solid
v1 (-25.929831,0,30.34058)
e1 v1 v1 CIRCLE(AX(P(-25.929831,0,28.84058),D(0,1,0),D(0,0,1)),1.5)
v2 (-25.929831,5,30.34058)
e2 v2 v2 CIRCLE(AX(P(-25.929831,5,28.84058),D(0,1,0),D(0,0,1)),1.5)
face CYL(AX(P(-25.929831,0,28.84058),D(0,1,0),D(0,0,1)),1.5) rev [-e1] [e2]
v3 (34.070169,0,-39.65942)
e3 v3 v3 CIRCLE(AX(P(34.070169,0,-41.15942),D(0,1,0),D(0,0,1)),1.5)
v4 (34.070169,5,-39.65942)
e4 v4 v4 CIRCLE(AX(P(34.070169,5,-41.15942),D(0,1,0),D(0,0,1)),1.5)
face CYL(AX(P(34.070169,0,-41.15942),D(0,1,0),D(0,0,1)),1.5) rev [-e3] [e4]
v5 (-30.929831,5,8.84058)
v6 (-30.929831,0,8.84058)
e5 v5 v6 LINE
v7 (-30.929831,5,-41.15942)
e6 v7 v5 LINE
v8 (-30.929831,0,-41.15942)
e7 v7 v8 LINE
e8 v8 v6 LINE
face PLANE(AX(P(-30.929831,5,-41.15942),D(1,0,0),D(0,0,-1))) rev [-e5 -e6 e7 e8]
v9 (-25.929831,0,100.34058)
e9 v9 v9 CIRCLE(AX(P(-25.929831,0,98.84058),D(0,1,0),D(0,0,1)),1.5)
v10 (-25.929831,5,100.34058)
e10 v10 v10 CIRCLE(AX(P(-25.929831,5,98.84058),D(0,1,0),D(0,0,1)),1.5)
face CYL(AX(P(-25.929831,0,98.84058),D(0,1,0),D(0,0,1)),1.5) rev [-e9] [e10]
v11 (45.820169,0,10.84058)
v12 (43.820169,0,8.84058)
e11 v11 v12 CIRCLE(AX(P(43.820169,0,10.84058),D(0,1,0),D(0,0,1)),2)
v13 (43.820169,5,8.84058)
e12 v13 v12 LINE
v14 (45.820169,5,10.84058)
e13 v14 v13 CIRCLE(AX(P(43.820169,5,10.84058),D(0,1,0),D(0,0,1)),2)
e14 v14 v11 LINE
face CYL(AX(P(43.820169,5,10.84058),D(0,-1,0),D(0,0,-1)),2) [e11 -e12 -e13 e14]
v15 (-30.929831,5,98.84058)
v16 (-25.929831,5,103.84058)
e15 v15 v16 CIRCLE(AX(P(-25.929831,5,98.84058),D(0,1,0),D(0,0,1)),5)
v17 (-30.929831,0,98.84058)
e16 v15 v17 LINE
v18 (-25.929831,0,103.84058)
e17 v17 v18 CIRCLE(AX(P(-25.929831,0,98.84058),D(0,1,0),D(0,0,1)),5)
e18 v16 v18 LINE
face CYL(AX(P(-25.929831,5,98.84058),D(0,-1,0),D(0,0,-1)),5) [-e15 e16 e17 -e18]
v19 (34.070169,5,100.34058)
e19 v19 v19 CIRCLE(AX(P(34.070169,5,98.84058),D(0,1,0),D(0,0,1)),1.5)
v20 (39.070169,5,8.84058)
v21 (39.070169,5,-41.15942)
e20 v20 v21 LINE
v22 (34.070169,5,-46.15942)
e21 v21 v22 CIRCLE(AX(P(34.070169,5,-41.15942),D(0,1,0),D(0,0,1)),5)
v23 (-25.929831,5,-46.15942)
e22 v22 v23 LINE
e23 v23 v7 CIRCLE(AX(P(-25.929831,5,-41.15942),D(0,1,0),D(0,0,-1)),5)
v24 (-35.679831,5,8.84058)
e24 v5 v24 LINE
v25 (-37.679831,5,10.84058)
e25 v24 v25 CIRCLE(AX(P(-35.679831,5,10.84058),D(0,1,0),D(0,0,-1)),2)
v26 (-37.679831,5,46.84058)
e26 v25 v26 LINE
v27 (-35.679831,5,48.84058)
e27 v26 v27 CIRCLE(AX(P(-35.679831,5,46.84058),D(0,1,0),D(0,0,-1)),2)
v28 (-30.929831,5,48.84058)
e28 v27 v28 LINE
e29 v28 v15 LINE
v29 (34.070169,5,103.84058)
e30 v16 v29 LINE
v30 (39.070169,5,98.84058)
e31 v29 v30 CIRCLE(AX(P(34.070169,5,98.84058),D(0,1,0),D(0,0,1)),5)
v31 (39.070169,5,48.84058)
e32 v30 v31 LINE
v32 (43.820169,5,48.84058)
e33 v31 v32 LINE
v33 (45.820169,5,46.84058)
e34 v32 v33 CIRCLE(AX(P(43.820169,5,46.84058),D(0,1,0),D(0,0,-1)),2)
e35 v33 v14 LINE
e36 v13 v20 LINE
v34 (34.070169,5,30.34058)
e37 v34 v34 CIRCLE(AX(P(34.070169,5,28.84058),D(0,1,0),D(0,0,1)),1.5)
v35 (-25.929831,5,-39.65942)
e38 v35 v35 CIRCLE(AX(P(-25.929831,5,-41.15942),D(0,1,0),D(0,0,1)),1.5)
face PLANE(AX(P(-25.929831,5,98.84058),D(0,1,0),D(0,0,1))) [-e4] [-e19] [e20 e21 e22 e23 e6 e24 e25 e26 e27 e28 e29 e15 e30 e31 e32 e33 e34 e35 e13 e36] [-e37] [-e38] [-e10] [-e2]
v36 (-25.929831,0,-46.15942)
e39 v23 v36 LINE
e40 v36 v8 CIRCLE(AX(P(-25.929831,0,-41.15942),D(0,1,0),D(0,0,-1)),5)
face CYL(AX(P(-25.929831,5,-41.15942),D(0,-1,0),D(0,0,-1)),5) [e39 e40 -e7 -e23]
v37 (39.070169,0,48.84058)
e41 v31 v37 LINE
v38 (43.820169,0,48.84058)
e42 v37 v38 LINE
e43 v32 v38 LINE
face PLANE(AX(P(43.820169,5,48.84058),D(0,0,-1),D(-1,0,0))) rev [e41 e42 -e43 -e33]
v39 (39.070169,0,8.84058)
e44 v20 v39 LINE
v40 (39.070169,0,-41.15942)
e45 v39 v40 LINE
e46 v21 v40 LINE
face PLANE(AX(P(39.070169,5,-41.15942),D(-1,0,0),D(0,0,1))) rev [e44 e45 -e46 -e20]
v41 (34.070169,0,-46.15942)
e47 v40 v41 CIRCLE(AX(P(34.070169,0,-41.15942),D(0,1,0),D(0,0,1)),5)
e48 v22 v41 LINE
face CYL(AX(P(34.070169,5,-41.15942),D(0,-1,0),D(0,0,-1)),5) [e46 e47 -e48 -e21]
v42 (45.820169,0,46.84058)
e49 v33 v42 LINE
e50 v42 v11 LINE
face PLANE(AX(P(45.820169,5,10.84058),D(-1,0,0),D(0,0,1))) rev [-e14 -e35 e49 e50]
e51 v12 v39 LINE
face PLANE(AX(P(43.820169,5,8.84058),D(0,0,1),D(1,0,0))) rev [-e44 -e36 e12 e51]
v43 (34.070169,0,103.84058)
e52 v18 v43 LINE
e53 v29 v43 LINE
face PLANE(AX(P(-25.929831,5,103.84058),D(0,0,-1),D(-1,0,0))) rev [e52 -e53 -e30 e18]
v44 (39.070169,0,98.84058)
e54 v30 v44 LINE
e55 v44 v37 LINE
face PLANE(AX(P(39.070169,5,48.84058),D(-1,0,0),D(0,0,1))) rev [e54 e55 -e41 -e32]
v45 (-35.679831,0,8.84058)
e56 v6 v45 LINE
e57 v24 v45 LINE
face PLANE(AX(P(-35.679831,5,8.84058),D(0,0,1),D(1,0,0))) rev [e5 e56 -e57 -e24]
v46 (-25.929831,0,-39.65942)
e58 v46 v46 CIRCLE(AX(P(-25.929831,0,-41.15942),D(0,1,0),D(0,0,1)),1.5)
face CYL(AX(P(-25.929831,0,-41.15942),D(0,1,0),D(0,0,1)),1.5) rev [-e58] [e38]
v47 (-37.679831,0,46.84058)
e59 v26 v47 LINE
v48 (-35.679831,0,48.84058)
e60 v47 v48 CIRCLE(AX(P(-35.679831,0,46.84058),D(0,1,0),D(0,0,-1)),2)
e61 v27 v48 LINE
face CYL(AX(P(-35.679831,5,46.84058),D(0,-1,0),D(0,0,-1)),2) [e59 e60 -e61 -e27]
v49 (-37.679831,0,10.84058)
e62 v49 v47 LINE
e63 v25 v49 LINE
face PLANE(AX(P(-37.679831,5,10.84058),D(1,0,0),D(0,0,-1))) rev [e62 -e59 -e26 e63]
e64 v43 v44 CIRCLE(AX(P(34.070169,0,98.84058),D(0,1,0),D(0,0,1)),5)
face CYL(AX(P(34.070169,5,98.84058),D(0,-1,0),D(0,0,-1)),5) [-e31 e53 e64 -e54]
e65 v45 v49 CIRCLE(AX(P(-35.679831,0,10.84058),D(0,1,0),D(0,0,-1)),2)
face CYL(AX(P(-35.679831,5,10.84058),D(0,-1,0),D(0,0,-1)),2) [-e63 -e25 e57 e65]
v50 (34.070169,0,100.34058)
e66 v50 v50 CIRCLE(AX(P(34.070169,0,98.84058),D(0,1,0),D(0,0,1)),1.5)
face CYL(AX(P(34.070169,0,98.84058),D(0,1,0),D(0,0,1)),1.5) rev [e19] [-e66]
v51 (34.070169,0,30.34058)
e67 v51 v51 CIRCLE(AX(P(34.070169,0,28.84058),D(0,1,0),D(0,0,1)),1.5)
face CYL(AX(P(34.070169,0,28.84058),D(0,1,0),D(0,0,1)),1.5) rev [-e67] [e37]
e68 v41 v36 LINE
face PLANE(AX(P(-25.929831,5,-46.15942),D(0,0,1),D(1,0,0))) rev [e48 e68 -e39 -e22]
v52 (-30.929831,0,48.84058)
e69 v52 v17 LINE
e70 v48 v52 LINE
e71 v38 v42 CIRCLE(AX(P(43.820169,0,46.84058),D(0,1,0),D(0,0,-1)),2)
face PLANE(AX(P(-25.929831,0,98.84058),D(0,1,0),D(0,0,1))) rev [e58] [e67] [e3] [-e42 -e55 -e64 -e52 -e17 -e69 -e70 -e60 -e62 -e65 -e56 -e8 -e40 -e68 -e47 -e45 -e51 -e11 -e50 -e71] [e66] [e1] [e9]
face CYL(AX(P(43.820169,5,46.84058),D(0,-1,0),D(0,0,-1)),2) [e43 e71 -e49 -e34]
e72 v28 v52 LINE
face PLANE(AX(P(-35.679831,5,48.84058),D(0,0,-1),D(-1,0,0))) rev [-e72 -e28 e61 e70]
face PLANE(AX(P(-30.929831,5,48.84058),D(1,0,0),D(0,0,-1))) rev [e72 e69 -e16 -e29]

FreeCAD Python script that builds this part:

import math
import FreeCAD as App
import Part
import Sketcher

doc = App.newDocument("Part")
body = doc.addObject("PartDesign::Body", "Body")

# Sketch on XZ plane
sketch1 = body.newObject("Sketcher::SketchObject", "Sketch")
sketch1.AttachmentSupport = (doc.getObject("XZ_Plane"), [""])
sketch1.MapMode = "FlatFace"
sketch1.addGeometry(Part.LineSegment(App.Vector(34.1, -46.2, 0), App.Vector(-25.9, -46.2, 0)), False)
sketch1.addGeometry(Part.ArcOfCircle(Part.Circle(App.Vector(-25.9, -41.2, 0), App.Vector(0, 0, 1), 5), math.radians(180), math.radians(270)), False)
sketch1.addGeometry(Part.LineSegment(App.Vector(-30.9, -41.2, 0), App.Vector(-30.9, 8.8, 0)), False)
sketch1.addGeometry(Part.LineSegment(App.Vector(-30.9, 8.8, 0), App.Vector(-35.7, 8.8, 0)), False)
sketch1.addGeometry(Part.ArcOfCircle(Part.Circle(App.Vector(-35.7, 10.8, 0), App.Vector(0, 0, 1), 2), math.radians(-180), math.radians(-90)), False)
sketch1.addGeometry(Part.LineSegment(App.Vector(-37.7, 10.8, 0), App.Vector(-37.7, 46.8, 0)), False)
sketch1.addGeometry(Part.ArcOfCircle(Part.Circle(App.Vector(-35.7, 46.8, 0), App.Vector(0, 0, 1), 2), math.radians(90), math.radians(180)), False)
sketch1.addGeometry(Part.LineSegment(App.Vector(-35.7, 48.8, 0), App.Vector(-30.9, 48.8, 0)), False)
sketch1.addGeometry(Part.LineSegment(App.Vector(-30.9, 48.8, 0), App.Vector(-30.9, 98.8, 0)), False)
sketch1.addGeometry(Part.ArcOfCircle(Part.Circle(App.Vector(-25.9, 98.8, 0), App.Vector(0, 0, 1), 5), math.radians(90), math.radians(180)), False)
sketch1.addGeometry(Part.LineSegment(App.Vector(-25.9, 103.8, 0), App.Vector(34.1, 103.8, 0)), False)
sketch1.addGeometry(Part.ArcOfCircle(Part.Circle(App.Vector(34.1, 98.8, 0), App.Vector(0, 0, 1), 5), math.radians(0), math.radians(90)), False)
sketch1.addGeometry(Part.LineSegment(App.Vector(39.1, 98.8, 0), App.Vector(39.1, 48.8, 0)), False)
sketch1.addGeometry(Part.LineSegment(App.Vector(39.1, 48.8, 0), App.Vector(43.8, 48.8, 0)), False)
sketch1.addGeometry(Part.ArcOfCircle(Part.Circle(App.Vector(43.8, 46.8, 0), App.Vector(0, 0, 1), 2), math.radians(0), math.radians(90)), False)
sketch1.addGeometry(Part.LineSegment(App.Vector(45.8, 46.8, 0), App.Vector(45.8, 10.8, 0)), False)
sketch1.addGeometry(Part.ArcOfCircle(Part.Circle(App.Vector(43.8, 10.8, 0), App.Vector(0, 0, 1), 2), math.radians(-90), math.radians(0)), False)
sketch1.addGeometry(Part.LineSegment(App.Vector(43.8, 8.8, 0), App.Vector(39.1, 8.8, 0)), False)
sketch1.addGeometry(Part.LineSegment(App.Vector(39.1, 8.8, 0), App.Vector(39.1, -41.2, 0)), False)
sketch1.addGeometry(Part.ArcOfCircle(Part.Circle(App.Vector(34.1, -41.2, 0), App.Vector(0, 0, 1), 5), math.radians(-90), math.radians(0)), False)
sketch1.addConstraint(Sketcher.Constraint("Tangent", 0, 2, 1, 2))
sketch1.addConstraint(Sketcher.Constraint("Tangent", 1, 1, 2, 1))
sketch1.addConstraint(Sketcher.Constraint("Coincident", 2, 2, 3, 1))
sketch1.addConstraint(Sketcher.Constraint("Tangent", 3, 2, 4, 2))
sketch1.addConstraint(Sketcher.Constraint("Tangent", 4, 1, 5, 1))
sketch1.addConstraint(Sketcher.Constraint("Tangent", 5, 2, 6, 2))
sketch1.addConstraint(Sketcher.Constraint("Tangent", 6, 1, 7, 1))
sketch1.addConstraint(Sketcher.Constraint("Coincident", 7, 2, 8, 1))
sketch1.addConstraint(Sketcher.Constraint("Tangent", 8, 2, 9, 2))
sketch1.addConstraint(Sketcher.Constraint("Tangent", 9, 1, 10, 1))
sketch1.addConstraint(Sketcher.Constraint("Tangent", 10, 2, 11, 2))
sketch1.addConstraint(Sketcher.Constraint("Tangent", 11, 1, 12, 1))
sketch1.addConstraint(Sketcher.Constraint("Coincident", 12, 2, 13, 1))
sketch1.addConstraint(Sketcher.Constraint("Tangent", 13, 2, 14, 2))
sketch1.addConstraint(Sketcher.Constraint("Tangent", 14, 1, 15, 1))
sketch1.addConstraint(Sketcher.Constraint("Tangent", 15, 2, 16, 2))
sketch1.addConstraint(Sketcher.Constraint("Tangent", 16, 1, 17, 1))
sketch1.addConstraint(Sketcher.Constraint("Coincident", 17, 2, 18, 1))
sketch1.addConstraint(Sketcher.Constraint("Tangent", 18, 2, 19, 2))
sketch1.addConstraint(Sketcher.Constraint("Tangent", 19, 1, 0, 1))
sketch1.addConstraint(Sketcher.Constraint("Horizontal", 0))
sketch1.addConstraint(Sketcher.Constraint("Vertical", 2))
sketch1.addConstraint(Sketcher.Constraint("Horizontal", 3))
sketch1.addConstraint(Sketcher.Constraint("Vertical", 5))
sketch1.addConstraint(Sketcher.Constraint("Horizontal", 7))
sketch1.addConstraint(Sketcher.Constraint("Vertical", 8))
sketch1.addConstraint(Sketcher.Constraint("Horizontal", 10))
sketch1.addConstraint(Sketcher.Constraint("Vertical", 12))
sketch1.addConstraint(Sketcher.Constraint("Horizontal", 13))
sketch1.addConstraint(Sketcher.Constraint("Vertical", 15))
sketch1.addConstraint(Sketcher.Constraint("Horizontal", 17))
sketch1.addConstraint(Sketcher.Constraint("Vertical", 18))
sketch1.addConstraint(Sketcher.Constraint("Equal", 4, 6))
sketch1.addConstraint(Sketcher.Constraint("Equal", 1, 9))
sketch1.addConstraint(Sketcher.Constraint("Equal", 9, 11))
sketch1.addConstraint(Sketcher.Constraint("Equal", 6, 14))
sketch1.addConstraint(Sketcher.Constraint("Equal", 14, 16))
sketch1.addConstraint(Sketcher.Constraint("Equal", 11, 19))
sketch1.addConstraint(Sketcher.Constraint("Horizontal", 6, 3, 14, 3))
sketch1.addConstraint(Sketcher.Constraint("Horizontal", 4, 3, 16, 3))
sketch1.addConstraint(Sketcher.Constraint("Vertical", 1, 3, 9, 3))
sketch1.addConstraint(Sketcher.Constraint("Vertical", 11, 3, 19, 3))
sketch1.addConstraint(Sketcher.Constraint("Equal", 7, 13))
sketch1.addConstraint(Sketcher.Constraint("Equal", 2, 8))
sketch1.addConstraint(Sketcher.Constraint("Radius", 1, 5.0))
sketch1.addConstraint(Sketcher.Constraint("Radius", 4, 2.0))
sketch1.addConstraint(Sketcher.Constraint("DistanceX", 0, 2, 0, 1, 60.0))
sketch1.addConstraint(Sketcher.Constraint("DistanceY", 2, 1, 2, 2, 50.0))
sketch1.addConstraint(Sketcher.Constraint("DistanceY", 5, 1, 5, 2, 36.0))
sketch1.addConstraint(Sketcher.Constraint("DistanceX", 3, 2, 3, 1, 4.75))
sketch1.addConstraint(Sketcher.Constraint("DistanceX", 1, 3, -1, 1, 25.929831))
sketch1.addConstraint(Sketcher.Constraint("DistanceY", 1, 3, -1, 1, 41.15942))
pad1 = body.newObject("PartDesign::Pad", "Pad")
pad1.Profile = sketch1
pad1.Length = 5
pad1.Reversed = True

# Sketch on XZ plane
sketch2 = body.newObject("Sketcher::SketchObject", "Sketch001")
sketch2.AttachmentSupport = (doc.getObject("XZ_Plane"), [""])
sketch2.MapMode = "FlatFace"
sketch2.AttachmentOffset = App.Placement(App.Vector(0, 0, -5), App.Rotation())
sketch2.addGeometry(Part.Circle(App.Vector(34.1, -41.2, 0), App.Vector(0, 0, 1), 1.5), False)
sketch2.addGeometry(Part.Circle(App.Vector(-25.9, -41.2, 0), App.Vector(0, 0, 1), 1.5), False)
sketch2.addGeometry(Part.Circle(App.Vector(-25.9, 98.8, 0), App.Vector(0, 0, 1), 1.5), False)
sketch2.addGeometry(Part.Circle(App.Vector(34.1, 98.8, 0), App.Vector(0, 0, 1), 1.5), False)
sketch2.addGeometry(Part.Circle(App.Vector(34.1, 28.8, 0), App.Vector(0, 0, 1), 1.5), False)
sketch2.addGeometry(Part.Circle(App.Vector(-25.9, 28.8, 0), App.Vector(0, 0, 1), 1.5), False)
sketch2.addConstraint(Sketcher.Constraint("Equal", 0, 1))
sketch2.addConstraint(Sketcher.Constraint("Equal", 1, 2))
sketch2.addConstraint(Sketcher.Constraint("Equal", 2, 3))
sketch2.addConstraint(Sketcher.Constraint("Equal", 3, 4))
sketch2.addConstraint(Sketcher.Constraint("Equal", 4, 5))
sketch2.addConstraint(Sketcher.Constraint("Horizontal", 0, 3, 1, 3))
sketch2.addConstraint(Sketcher.Constraint("Horizontal", 2, 3, 3, 3))
sketch2.addConstraint(Sketcher.Constraint("Horizontal", 4, 3, 5, 3))
sketch2.addConstraint(Sketcher.Constraint("Vertical", 1, 3, 2, 3))
sketch2.addConstraint(Sketcher.Constraint("Vertical", 0, 3, 3, 3))
sketch2.addConstraint(Sketcher.Constraint("Vertical", 3, 3, 4, 3))
sketch2.addConstraint(Sketcher.Constraint("Vertical", 2, 3, 5, 3))
sketch2.addConstraint(Sketcher.Constraint("Diameter", 0, 3.0))
sketch2.addConstraint(Sketcher.Constraint("DistanceX", 1, 3, 0, 3, 60.0))
sketch2.addConstraint(Sketcher.Constraint("DistanceY", 1, 3, 2, 3, 140.0))
sketch2.addConstraint(Sketcher.Constraint("DistanceY", 0, 3, 4, 3, 70.0))
sketch2.addConstraint(Sketcher.Constraint("DistanceX", -1, 1, 0, 3, 34.070169))
sketch2.addConstraint(Sketcher.Constraint("DistanceY", 0, 3, -1, 1, 41.15942))
pocket1 = body.newObject("PartDesign::Pocket", "Pocket")
pocket1.Profile = sketch2
pocket1.Type = "ThroughAll"
pocket1.Reversed = True

doc.recompute()
